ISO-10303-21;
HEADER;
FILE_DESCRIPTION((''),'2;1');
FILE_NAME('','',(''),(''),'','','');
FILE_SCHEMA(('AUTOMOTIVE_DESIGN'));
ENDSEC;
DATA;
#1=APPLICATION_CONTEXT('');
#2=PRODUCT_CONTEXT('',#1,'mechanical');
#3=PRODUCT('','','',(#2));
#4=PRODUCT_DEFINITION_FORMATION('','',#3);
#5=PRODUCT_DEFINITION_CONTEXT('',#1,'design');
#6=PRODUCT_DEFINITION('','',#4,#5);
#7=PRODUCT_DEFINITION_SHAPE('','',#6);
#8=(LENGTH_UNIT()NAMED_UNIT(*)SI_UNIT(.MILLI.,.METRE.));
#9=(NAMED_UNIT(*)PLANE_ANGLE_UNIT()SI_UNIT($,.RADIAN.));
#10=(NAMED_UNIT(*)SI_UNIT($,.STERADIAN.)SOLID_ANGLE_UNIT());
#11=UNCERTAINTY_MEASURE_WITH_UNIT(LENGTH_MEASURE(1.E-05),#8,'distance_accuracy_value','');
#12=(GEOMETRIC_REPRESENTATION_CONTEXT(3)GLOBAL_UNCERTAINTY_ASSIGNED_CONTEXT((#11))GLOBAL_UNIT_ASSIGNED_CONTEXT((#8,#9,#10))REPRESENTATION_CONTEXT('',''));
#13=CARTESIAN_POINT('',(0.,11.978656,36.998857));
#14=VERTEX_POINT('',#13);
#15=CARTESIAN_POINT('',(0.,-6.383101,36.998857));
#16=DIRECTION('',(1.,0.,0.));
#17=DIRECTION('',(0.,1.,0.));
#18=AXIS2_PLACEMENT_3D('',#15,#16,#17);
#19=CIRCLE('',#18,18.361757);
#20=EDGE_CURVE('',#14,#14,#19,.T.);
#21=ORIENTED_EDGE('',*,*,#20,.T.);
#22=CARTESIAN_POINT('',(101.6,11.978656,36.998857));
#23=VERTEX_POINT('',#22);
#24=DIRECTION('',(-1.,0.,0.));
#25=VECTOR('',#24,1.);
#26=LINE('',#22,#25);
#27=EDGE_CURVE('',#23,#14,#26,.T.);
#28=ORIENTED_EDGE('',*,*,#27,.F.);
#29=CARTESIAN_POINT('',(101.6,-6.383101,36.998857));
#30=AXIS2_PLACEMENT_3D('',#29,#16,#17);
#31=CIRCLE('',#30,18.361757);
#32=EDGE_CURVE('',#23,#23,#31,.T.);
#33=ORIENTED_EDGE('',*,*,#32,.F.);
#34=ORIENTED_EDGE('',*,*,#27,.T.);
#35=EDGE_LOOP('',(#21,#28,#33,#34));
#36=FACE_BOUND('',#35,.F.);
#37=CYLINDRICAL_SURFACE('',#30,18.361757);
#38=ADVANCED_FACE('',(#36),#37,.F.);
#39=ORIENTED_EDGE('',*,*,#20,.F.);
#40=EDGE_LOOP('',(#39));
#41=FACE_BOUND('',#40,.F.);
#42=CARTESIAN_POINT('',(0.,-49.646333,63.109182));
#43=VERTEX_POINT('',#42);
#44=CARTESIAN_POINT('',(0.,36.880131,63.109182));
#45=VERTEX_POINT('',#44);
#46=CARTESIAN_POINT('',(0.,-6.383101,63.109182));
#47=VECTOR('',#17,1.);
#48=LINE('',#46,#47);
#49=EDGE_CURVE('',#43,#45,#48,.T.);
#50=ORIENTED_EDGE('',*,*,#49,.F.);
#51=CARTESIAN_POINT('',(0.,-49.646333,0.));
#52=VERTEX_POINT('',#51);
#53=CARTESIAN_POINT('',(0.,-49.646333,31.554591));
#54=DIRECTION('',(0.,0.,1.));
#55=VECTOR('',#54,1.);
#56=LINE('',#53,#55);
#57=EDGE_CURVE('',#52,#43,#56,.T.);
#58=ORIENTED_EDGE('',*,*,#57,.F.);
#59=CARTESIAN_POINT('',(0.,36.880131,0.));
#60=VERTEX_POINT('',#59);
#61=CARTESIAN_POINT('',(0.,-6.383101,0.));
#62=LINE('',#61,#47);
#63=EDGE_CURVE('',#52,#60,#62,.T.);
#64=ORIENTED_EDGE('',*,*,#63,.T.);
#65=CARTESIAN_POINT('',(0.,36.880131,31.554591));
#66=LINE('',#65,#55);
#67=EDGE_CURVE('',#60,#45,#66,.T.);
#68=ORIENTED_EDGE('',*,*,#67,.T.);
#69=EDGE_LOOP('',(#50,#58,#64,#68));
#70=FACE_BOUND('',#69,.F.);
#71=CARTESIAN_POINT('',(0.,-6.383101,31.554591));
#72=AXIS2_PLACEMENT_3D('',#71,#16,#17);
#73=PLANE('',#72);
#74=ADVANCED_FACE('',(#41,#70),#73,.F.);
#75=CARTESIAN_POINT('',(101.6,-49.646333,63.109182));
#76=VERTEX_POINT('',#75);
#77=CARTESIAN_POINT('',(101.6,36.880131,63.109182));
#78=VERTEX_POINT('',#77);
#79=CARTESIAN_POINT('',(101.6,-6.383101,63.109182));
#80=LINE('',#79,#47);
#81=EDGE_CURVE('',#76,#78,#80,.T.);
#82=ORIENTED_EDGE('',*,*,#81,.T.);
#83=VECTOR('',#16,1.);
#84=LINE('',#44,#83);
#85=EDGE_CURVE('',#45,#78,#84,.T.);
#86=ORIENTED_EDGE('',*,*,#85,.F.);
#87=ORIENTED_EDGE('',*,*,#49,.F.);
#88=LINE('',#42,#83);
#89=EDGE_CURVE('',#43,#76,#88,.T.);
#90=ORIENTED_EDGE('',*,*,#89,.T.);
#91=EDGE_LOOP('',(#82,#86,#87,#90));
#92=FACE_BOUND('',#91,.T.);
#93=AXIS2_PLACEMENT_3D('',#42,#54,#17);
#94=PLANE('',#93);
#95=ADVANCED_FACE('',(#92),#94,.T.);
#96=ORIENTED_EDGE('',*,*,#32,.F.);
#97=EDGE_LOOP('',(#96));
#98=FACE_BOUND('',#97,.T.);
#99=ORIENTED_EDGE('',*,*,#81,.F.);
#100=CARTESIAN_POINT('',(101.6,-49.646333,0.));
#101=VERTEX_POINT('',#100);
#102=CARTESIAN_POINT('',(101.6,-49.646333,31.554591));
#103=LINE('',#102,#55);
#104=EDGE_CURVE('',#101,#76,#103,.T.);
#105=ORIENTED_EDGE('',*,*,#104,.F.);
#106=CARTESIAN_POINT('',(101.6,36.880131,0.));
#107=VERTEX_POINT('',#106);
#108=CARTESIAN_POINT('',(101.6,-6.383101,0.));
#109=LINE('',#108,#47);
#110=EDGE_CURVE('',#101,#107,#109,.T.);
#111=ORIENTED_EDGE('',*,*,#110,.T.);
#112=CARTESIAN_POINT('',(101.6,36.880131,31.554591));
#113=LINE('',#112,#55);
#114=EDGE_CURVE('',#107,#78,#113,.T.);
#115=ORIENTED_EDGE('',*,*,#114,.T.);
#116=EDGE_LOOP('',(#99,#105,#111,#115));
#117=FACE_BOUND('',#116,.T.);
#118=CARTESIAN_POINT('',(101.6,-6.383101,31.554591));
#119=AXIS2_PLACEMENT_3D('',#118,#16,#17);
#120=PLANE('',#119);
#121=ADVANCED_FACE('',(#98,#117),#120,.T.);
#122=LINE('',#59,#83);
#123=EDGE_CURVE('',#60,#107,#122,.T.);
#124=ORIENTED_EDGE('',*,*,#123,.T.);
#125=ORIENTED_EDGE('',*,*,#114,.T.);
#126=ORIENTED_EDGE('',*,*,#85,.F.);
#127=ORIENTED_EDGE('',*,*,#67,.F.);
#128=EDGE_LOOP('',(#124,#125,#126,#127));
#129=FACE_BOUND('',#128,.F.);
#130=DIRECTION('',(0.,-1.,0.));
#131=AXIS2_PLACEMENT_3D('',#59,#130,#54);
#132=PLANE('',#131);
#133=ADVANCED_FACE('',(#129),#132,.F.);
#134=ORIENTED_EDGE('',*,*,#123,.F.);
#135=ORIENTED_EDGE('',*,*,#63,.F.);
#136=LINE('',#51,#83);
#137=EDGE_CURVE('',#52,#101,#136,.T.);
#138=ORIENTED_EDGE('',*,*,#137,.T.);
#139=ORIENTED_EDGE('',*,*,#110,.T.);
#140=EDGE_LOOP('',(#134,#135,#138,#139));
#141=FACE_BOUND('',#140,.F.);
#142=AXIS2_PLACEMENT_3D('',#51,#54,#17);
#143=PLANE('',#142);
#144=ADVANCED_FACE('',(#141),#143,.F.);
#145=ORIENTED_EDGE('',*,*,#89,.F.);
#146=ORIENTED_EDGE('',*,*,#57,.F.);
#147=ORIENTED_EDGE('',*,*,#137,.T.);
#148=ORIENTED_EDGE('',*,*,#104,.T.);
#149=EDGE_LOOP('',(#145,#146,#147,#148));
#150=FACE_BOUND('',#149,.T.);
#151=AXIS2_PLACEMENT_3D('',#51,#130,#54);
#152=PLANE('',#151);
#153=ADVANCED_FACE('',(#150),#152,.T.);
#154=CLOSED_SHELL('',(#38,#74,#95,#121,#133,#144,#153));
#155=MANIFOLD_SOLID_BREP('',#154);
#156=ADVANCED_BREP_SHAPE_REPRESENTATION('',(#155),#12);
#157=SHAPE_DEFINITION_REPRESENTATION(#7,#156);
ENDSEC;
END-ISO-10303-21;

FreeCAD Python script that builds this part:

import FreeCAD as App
import Part
import Sketcher

V = App.Vector
Q = App.Units.Quantity

doc = App.newDocument("Part")
body = doc.addObject("PartDesign::Body", "Body")

sketch1 = body.newObject("Sketcher::SketchObject", "Sketch")
sketch1.AttachmentSupport = (doc.getObject("YZ_Plane"), [""])
sketch1.MapMode = "FlatFace"
sketch1.addGeometry(Part.LineSegment(V(-50, 63, 0), V(-50, 0, 0)), False)
sketch1.addGeometry(Part.LineSegment(V(-50, 0, 0), V(37, 0, 0)), False)
sketch1.addGeometry(Part.LineSegment(V(37, 0, 0), V(37, 63, 0)), False)
sketch1.addGeometry(Part.LineSegment(V(37, 63, 0), V(-50, 63, 0)), False)
sketch1.addConstraint(Sketcher.Constraint("Coincident", 0, 2, 1, 1))
sketch1.addConstraint(Sketcher.Constraint("Coincident", 1, 2, 2, 1))
sketch1.addConstraint(Sketcher.Constraint("Coincident", 2, 2, 3, 1))
sketch1.addConstraint(Sketcher.Constraint("Coincident", 3, 2, 0, 1))
sketch1.addConstraint(Sketcher.Constraint("Vertical", 0))
sketch1.addConstraint(Sketcher.Constraint("Horizontal", 1))
sketch1.addConstraint(Sketcher.Constraint("Vertical", 2))
sketch1.addConstraint(Sketcher.Constraint("Horizontal", 3))
sketch1.addConstraint(Sketcher.Constraint("PointOnObject", 0, 2, -1))
sketch1.addConstraint(Sketcher.Constraint("DistanceY", 0, 2, 0, 1, Q("63.109182 mm")))
sketch1.addConstraint(Sketcher.Constraint("DistanceX", 1, 1, 1, 2, Q("86.526465 mm")))
sketch1.addConstraint(Sketcher.Constraint("DistanceX", -1, 1, 1, 2, Q("36.880131 mm")))
pad1 = body.newObject("PartDesign::Pad", "Pad")
pad1.Profile = sketch1
pad1.Length = Q("4 in")

sketch2 = body.newObject("Sketcher::SketchObject", "Sketch001")
sketch2.AttachmentSupport = (doc.getObject("YZ_Plane"), [""])
sketch2.MapMode = "FlatFace"
sketch2.AttachmentOffset = App.Placement(V(0, 0, 4 * 25.4), App.Rotation())
sketch2.addGeometry(Part.Circle(V(-6, 37, 0), V(0, 0, 1), 18), False)
sketch2.addConstraint(Sketcher.Constraint("Diameter", 0, Q("36.723514 mm")))
sketch2.addConstraint(Sketcher.Constraint("DistanceX", 0, 3, -1, 1, Q("6.383101 mm")))
sketch2.addConstraint(Sketcher.Constraint("DistanceY", -1, 1, 0, 3, Q("36.998857 mm")))
pocket1 = body.newObject("PartDesign::Pocket", "Pocket")
pocket1.Profile = sketch2
pocket1.Type = "ThroughAll"

doc.recompute()
